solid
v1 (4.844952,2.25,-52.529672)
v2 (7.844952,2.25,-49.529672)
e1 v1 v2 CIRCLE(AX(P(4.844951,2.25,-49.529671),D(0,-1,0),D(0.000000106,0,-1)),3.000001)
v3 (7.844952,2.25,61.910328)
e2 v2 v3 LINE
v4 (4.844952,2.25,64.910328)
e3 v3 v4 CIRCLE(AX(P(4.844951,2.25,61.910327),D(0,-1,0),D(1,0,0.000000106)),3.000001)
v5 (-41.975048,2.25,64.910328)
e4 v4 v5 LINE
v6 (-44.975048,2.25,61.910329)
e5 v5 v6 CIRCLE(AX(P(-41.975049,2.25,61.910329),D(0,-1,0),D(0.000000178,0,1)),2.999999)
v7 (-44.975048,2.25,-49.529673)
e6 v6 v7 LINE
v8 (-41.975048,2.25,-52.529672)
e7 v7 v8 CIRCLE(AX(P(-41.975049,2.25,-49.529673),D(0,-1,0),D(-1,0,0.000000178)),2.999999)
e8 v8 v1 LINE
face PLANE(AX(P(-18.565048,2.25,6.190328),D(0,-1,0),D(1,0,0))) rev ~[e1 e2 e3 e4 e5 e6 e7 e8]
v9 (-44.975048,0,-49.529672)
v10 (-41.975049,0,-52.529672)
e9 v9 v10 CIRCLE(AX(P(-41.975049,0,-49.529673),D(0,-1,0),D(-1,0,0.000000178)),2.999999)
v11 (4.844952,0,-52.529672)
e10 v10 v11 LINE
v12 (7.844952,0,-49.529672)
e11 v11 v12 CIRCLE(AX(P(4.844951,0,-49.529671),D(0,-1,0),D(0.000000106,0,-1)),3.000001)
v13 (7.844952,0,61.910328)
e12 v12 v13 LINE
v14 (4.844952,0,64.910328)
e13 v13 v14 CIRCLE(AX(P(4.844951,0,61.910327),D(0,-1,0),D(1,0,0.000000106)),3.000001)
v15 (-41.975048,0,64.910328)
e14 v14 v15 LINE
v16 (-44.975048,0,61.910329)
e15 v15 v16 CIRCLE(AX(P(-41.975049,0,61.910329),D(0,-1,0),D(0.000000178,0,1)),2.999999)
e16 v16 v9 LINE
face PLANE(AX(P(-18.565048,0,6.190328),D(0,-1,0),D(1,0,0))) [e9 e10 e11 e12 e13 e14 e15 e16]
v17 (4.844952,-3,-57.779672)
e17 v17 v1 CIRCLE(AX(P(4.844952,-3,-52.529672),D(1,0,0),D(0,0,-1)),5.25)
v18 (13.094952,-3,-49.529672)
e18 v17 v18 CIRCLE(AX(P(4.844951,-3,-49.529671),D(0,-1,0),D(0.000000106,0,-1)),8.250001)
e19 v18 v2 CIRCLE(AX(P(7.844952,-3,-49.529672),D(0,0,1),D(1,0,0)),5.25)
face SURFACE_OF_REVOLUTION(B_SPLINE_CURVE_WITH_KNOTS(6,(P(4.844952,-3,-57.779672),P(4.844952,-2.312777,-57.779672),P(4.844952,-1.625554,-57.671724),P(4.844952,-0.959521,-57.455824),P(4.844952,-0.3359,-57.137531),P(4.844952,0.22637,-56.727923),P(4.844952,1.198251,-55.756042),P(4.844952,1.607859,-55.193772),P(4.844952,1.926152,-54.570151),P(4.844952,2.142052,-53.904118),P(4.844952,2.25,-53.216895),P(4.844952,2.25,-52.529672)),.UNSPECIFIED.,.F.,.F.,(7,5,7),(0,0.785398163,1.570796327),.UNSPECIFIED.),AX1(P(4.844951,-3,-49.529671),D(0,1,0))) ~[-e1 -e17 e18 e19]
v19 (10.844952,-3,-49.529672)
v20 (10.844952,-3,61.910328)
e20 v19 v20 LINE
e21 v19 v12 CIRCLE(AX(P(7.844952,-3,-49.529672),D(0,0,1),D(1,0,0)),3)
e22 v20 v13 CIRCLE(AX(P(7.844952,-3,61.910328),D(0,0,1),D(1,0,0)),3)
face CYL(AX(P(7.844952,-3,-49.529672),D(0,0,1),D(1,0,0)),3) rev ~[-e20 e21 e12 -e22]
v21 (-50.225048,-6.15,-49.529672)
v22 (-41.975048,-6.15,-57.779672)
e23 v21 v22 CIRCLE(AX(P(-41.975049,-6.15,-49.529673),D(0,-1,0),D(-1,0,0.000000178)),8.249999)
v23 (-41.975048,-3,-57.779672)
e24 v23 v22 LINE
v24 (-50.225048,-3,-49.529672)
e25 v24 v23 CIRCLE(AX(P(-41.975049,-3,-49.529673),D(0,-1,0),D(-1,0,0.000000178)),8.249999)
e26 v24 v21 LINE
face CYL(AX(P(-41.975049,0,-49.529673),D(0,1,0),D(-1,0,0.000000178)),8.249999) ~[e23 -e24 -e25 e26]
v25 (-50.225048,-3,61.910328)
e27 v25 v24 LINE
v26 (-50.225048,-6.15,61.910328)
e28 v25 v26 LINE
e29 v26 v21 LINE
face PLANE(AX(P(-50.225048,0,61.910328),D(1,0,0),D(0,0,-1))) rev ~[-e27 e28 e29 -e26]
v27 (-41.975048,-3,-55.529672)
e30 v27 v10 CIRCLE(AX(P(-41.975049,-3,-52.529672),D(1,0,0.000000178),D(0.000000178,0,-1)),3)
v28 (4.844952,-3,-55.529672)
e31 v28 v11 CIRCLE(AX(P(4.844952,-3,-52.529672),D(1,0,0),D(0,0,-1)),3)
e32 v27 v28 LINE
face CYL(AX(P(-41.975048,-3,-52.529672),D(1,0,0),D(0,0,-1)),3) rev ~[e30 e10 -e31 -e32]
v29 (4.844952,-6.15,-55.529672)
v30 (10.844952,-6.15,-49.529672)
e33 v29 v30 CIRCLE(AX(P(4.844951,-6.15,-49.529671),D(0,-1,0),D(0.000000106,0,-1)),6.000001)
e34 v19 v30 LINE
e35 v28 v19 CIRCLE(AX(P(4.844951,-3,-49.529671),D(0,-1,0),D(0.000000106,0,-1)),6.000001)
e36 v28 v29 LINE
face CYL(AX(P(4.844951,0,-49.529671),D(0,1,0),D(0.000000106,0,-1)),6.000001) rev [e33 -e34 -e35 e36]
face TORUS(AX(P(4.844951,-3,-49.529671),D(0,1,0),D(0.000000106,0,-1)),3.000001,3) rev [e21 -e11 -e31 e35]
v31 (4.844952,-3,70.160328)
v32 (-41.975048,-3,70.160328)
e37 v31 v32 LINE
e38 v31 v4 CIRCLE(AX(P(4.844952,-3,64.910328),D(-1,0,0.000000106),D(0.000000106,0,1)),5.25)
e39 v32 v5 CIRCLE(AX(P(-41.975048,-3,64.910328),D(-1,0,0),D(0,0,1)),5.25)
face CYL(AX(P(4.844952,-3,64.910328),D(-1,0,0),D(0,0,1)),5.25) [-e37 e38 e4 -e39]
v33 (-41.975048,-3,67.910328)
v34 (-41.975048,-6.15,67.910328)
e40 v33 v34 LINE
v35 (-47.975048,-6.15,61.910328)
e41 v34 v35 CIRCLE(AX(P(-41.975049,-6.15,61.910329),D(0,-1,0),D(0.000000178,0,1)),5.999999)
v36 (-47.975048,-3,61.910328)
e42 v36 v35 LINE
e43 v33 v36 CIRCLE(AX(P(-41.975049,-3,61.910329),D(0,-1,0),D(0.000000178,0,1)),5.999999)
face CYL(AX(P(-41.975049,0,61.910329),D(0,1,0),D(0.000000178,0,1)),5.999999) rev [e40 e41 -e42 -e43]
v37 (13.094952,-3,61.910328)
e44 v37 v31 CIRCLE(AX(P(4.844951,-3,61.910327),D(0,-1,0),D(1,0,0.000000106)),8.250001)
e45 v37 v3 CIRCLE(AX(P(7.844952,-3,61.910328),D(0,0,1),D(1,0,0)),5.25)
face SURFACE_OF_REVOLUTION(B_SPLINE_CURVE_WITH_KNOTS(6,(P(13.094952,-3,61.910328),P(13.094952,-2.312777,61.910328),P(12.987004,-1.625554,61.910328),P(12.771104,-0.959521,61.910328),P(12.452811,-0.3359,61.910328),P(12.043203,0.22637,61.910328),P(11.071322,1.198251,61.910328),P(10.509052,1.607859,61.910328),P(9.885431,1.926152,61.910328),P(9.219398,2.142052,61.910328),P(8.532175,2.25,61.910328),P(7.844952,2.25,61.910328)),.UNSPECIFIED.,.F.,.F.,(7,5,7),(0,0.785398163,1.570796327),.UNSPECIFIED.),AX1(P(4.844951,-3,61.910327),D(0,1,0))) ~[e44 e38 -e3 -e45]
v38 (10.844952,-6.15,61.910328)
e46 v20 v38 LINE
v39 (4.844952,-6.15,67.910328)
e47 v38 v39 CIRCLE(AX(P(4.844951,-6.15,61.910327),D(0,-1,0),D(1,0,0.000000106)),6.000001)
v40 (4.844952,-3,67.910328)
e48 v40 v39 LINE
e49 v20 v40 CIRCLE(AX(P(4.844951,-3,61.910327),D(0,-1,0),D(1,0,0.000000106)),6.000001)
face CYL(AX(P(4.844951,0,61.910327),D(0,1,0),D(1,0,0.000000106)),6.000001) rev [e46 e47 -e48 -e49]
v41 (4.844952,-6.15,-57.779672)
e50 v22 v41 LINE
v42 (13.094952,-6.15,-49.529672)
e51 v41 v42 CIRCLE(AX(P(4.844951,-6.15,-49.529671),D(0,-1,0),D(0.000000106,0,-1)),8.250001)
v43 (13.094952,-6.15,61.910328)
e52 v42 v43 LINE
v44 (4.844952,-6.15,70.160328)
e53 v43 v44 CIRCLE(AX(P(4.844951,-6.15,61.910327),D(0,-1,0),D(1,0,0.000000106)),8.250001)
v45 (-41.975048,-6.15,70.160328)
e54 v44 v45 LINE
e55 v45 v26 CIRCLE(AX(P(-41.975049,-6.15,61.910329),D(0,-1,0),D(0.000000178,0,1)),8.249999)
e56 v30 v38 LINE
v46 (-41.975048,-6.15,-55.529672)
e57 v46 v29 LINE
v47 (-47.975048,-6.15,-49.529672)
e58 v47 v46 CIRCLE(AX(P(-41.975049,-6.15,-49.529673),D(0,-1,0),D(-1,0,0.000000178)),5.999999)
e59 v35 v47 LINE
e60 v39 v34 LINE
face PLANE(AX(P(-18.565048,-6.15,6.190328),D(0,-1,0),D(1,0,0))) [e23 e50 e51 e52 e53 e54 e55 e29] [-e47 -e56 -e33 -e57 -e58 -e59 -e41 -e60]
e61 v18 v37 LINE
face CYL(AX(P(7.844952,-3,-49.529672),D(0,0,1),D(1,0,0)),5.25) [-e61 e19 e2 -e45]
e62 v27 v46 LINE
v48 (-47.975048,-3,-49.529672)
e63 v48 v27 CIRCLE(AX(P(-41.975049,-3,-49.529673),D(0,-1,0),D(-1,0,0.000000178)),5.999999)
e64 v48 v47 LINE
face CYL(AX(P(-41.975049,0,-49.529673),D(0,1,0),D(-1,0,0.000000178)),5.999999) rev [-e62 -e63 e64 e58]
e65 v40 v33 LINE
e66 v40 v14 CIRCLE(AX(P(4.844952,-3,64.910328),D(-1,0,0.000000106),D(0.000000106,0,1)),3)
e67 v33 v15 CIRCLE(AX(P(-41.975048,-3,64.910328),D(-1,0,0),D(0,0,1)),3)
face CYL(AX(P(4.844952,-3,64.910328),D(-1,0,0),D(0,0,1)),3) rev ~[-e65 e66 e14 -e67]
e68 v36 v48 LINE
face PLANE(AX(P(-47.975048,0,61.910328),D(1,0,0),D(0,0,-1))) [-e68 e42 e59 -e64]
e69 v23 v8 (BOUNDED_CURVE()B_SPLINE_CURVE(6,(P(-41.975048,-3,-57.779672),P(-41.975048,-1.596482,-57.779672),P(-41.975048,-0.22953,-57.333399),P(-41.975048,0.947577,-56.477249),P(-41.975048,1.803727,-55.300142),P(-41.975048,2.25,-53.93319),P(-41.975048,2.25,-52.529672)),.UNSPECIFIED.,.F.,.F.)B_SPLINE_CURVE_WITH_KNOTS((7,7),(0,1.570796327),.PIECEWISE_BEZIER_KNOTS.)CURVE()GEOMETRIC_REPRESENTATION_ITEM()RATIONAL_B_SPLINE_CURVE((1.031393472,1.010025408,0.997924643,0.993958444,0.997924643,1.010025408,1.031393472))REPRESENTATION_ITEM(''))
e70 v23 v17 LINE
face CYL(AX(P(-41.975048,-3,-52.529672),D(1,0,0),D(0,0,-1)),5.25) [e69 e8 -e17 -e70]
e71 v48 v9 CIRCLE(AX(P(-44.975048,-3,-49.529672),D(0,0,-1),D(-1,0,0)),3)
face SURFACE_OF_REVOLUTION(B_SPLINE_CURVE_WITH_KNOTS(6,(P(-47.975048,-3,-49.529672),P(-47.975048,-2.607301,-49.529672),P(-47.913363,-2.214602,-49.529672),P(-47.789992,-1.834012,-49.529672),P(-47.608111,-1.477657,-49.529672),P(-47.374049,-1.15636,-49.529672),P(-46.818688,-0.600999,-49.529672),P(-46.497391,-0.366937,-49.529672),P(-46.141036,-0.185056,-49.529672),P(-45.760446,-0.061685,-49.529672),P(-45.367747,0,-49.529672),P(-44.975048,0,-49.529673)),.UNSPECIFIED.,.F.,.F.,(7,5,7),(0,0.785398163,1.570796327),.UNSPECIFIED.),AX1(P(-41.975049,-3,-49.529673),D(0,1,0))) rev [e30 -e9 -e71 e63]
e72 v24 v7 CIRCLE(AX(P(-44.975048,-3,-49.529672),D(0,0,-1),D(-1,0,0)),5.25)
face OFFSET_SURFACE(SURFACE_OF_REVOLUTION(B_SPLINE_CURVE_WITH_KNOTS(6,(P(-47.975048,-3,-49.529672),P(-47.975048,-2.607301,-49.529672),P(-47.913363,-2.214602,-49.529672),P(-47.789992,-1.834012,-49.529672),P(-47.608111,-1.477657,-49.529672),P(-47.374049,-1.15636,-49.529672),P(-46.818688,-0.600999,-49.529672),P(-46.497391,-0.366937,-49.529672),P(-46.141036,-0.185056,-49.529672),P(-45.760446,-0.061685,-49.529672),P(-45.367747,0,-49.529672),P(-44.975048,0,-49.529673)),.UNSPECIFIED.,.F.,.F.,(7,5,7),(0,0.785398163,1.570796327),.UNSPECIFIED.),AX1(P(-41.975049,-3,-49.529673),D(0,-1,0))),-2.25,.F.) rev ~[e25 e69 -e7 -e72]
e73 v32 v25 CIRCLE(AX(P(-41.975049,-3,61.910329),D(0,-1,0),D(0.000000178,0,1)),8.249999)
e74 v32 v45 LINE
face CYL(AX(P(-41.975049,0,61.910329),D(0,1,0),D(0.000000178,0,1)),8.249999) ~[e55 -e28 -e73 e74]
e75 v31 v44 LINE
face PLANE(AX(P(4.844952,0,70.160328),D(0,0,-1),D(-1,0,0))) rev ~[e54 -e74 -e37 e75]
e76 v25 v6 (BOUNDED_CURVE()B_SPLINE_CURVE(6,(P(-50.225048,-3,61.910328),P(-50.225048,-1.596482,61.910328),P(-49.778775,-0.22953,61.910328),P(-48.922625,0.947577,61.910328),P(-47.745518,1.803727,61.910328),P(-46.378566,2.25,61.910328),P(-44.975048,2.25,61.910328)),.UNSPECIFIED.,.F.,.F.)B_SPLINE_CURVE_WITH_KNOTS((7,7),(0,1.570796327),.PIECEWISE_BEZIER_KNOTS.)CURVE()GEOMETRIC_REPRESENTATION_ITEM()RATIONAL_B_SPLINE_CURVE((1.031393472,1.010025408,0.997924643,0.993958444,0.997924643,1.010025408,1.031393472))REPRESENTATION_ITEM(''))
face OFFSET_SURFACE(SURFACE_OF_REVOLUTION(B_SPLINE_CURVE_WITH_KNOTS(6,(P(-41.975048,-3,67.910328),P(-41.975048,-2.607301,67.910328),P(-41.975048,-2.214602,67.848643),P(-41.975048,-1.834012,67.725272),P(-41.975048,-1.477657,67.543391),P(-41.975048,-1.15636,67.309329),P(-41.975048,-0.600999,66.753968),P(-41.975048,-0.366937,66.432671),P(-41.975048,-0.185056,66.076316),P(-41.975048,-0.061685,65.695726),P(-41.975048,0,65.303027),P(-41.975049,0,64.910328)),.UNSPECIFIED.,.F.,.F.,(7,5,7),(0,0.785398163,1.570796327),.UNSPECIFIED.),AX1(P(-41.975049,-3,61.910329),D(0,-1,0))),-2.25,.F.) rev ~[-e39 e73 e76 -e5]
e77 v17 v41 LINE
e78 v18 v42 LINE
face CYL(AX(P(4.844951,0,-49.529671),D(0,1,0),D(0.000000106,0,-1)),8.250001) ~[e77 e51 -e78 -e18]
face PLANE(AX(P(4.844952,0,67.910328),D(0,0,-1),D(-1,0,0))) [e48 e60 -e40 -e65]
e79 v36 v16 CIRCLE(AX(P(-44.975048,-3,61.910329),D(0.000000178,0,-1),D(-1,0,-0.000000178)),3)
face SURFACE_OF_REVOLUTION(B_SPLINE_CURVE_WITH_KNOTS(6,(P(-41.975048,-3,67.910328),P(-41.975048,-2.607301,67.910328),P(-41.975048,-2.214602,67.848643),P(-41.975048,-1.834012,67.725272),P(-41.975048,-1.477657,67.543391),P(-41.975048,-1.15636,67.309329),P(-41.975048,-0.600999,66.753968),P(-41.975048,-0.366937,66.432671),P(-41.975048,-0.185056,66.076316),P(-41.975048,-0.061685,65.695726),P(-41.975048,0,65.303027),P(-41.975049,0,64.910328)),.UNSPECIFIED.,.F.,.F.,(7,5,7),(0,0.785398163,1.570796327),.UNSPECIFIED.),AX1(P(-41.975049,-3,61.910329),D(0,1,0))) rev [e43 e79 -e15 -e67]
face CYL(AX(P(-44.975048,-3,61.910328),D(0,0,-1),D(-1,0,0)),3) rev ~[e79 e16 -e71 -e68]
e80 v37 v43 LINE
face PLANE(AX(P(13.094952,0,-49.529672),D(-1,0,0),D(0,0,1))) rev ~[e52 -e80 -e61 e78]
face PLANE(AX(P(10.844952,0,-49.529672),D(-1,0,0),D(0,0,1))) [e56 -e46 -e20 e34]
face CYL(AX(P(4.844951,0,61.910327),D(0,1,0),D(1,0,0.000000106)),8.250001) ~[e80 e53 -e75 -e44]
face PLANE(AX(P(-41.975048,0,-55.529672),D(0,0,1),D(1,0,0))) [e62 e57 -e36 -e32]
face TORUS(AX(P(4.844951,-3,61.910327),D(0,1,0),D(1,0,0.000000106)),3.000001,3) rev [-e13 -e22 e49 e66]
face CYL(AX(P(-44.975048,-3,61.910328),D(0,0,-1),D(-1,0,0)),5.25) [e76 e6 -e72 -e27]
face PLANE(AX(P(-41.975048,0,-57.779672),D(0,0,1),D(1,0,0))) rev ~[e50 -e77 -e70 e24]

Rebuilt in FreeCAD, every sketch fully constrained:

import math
import FreeCAD as App
import Part
import Sketcher
Q = App.Units.Quantity


def edges_at(feature, points):
    """Names of the edges that pass closest to the given points."""
    edges = feature.Shape.Edges
    near = lambda p: min(range(len(edges)), key=lambda i: edges[i].distToShape(Part.Vertex(*p))[0])
    return sorted({f"Edge{near(p) + 1}" for p in points})


def faces_at(feature, points):
    """Names of the faces that lie closest to the given points."""
    faces = feature.Shape.Faces
    near = lambda p: min(range(len(faces)), key=lambda i: faces[i].distToShape(Part.Vertex(*p))[0])
    return sorted({f"Face{near(p) + 1}" for p in points})

doc = App.newDocument("Part")
params = doc.addObject("Spreadsheet::Sheet", "Params")
for row, (alias, value) in enumerate([
    ("sketch1_radius", "5.999999 mm"),
    ("sketch1_width", "46.82 mm"),
    ("sketch1_height", "111.44 mm"),
    ("pad1_length", "6.15 mm"),
    ("fillet_radius", "3 mm"),
    ("thickness_wall", "2.25 mm"),
], start=1):
    params.set(f"A{row}", alias)
    params.set(f"B{row}", "=" + value)
    params.setAlias(f"B{row}", alias)

body = doc.addObject("PartDesign::Body", "Body")

# Sketch on XZ plane
sketch1 = doc.addObject("Sketcher::SketchObject", "Sketch")
body.addObject(sketch1)
sketch1.AttachmentSupport = (doc.XZ_Plane, [""])
sketch1.MapMode = "FlatFace"
sketch1.addGeometry([
    Part.ArcOfCircle(Part.Circle(App.Vector(-42, 62, 0), App.Vector(0, 0, 1), 6), math.radians(90), math.radians(180)),  # 0
    Part.LineSegment(App.Vector(-48, 62, 0), App.Vector(-48, -50, 0)),  # 1
    Part.ArcOfCircle(Part.Circle(App.Vector(-42, -50, 0), App.Vector(0, 0, 1), 6), math.radians(180), math.radians(270)),  # 2
    Part.LineSegment(App.Vector(-42, -56, 0), App.Vector(5, -56, 0)),  # 3
    Part.ArcOfCircle(Part.Circle(App.Vector(5, -50, 0), App.Vector(0, 0, 1), 6), math.radians(-90), math.radians(0)),  # 4
    Part.LineSegment(App.Vector(11, -50, 0), App.Vector(11, 62, 0)),  # 5
    Part.ArcOfCircle(Part.Circle(App.Vector(5, 62, 0), App.Vector(0, 0, 1), 6), math.radians(0), math.radians(90)),  # 6
    Part.LineSegment(App.Vector(5, 68, 0), App.Vector(-42, 68, 0)),  # 7
], False)
sketch1.addConstraint([
    Sketcher.Constraint("Tangent", 0, 2, 1, 1),
    Sketcher.Constraint("Tangent", 1, 2, 2, 1),
    Sketcher.Constraint("Tangent", 2, 2, 3, 1),
    Sketcher.Constraint("Tangent", 3, 2, 4, 1),
    Sketcher.Constraint("Tangent", 4, 2, 5, 1),
    Sketcher.Constraint("Tangent", 5, 2, 6, 1),
    Sketcher.Constraint("Tangent", 6, 2, 7, 1),
    Sketcher.Constraint("Tangent", 7, 2, 0, 1),
    Sketcher.Constraint("Vertical", 1),
    Sketcher.Constraint("Horizontal", 3),
    Sketcher.Constraint("Vertical", 5),
    Sketcher.Constraint("Horizontal", 7),
    Sketcher.Constraint("Equal", 0, 2),
    Sketcher.Constraint("Equal", 2, 4),
    Sketcher.Constraint("Equal", 4, 6),
    Sketcher.Constraint("Radius", 0, Q("5.999999 mm")),
    Sketcher.Constraint("DistanceX", 3, 1, 3, 2, Q("46.82 mm")),
    Sketcher.Constraint("DistanceY", 1, 2, 1, 1, Q("111.44 mm")),
    Sketcher.Constraint("DistanceX", 0, 3, -1, 1, Q("41.975049 mm")),
    Sketcher.Constraint("DistanceY", -1, 1, 0, 3, Q("61.910329 mm")),
])
sketch1.setExpression("Constraints[15]", "Params.sketch1_radius")
sketch1.setExpression("Constraints[16]", "Params.sketch1_width")
sketch1.setExpression("Constraints[17]", "Params.sketch1_height")
pad1 = doc.addObject("PartDesign::Pad", "Pad")
body.addObject(pad1)
pad1.Profile = sketch1
pad1.setExpression("Length", "Params.pad1_length")
doc.recompute()

fillet = doc.addObject("PartDesign::Fillet", "Fillet")
body.addObject(fillet)
fillet.Base = (pad1, edges_at(pad1, [(10.845, 0, 6.19)]))
fillet.setExpression("Radius", "Params.fillet_radius")
doc.recompute()

thickness = doc.addObject("PartDesign::Thickness", "Thickness")
body.addObject(thickness)
thickness.Base = (fillet, faces_at(fillet, [(-18.565, -6.15, 6.19)]))
thickness.setExpression("Value", "Params.thickness_wall")
thickness.Reversed = False
thickness.Join = "Arc"

doc.recompute()
